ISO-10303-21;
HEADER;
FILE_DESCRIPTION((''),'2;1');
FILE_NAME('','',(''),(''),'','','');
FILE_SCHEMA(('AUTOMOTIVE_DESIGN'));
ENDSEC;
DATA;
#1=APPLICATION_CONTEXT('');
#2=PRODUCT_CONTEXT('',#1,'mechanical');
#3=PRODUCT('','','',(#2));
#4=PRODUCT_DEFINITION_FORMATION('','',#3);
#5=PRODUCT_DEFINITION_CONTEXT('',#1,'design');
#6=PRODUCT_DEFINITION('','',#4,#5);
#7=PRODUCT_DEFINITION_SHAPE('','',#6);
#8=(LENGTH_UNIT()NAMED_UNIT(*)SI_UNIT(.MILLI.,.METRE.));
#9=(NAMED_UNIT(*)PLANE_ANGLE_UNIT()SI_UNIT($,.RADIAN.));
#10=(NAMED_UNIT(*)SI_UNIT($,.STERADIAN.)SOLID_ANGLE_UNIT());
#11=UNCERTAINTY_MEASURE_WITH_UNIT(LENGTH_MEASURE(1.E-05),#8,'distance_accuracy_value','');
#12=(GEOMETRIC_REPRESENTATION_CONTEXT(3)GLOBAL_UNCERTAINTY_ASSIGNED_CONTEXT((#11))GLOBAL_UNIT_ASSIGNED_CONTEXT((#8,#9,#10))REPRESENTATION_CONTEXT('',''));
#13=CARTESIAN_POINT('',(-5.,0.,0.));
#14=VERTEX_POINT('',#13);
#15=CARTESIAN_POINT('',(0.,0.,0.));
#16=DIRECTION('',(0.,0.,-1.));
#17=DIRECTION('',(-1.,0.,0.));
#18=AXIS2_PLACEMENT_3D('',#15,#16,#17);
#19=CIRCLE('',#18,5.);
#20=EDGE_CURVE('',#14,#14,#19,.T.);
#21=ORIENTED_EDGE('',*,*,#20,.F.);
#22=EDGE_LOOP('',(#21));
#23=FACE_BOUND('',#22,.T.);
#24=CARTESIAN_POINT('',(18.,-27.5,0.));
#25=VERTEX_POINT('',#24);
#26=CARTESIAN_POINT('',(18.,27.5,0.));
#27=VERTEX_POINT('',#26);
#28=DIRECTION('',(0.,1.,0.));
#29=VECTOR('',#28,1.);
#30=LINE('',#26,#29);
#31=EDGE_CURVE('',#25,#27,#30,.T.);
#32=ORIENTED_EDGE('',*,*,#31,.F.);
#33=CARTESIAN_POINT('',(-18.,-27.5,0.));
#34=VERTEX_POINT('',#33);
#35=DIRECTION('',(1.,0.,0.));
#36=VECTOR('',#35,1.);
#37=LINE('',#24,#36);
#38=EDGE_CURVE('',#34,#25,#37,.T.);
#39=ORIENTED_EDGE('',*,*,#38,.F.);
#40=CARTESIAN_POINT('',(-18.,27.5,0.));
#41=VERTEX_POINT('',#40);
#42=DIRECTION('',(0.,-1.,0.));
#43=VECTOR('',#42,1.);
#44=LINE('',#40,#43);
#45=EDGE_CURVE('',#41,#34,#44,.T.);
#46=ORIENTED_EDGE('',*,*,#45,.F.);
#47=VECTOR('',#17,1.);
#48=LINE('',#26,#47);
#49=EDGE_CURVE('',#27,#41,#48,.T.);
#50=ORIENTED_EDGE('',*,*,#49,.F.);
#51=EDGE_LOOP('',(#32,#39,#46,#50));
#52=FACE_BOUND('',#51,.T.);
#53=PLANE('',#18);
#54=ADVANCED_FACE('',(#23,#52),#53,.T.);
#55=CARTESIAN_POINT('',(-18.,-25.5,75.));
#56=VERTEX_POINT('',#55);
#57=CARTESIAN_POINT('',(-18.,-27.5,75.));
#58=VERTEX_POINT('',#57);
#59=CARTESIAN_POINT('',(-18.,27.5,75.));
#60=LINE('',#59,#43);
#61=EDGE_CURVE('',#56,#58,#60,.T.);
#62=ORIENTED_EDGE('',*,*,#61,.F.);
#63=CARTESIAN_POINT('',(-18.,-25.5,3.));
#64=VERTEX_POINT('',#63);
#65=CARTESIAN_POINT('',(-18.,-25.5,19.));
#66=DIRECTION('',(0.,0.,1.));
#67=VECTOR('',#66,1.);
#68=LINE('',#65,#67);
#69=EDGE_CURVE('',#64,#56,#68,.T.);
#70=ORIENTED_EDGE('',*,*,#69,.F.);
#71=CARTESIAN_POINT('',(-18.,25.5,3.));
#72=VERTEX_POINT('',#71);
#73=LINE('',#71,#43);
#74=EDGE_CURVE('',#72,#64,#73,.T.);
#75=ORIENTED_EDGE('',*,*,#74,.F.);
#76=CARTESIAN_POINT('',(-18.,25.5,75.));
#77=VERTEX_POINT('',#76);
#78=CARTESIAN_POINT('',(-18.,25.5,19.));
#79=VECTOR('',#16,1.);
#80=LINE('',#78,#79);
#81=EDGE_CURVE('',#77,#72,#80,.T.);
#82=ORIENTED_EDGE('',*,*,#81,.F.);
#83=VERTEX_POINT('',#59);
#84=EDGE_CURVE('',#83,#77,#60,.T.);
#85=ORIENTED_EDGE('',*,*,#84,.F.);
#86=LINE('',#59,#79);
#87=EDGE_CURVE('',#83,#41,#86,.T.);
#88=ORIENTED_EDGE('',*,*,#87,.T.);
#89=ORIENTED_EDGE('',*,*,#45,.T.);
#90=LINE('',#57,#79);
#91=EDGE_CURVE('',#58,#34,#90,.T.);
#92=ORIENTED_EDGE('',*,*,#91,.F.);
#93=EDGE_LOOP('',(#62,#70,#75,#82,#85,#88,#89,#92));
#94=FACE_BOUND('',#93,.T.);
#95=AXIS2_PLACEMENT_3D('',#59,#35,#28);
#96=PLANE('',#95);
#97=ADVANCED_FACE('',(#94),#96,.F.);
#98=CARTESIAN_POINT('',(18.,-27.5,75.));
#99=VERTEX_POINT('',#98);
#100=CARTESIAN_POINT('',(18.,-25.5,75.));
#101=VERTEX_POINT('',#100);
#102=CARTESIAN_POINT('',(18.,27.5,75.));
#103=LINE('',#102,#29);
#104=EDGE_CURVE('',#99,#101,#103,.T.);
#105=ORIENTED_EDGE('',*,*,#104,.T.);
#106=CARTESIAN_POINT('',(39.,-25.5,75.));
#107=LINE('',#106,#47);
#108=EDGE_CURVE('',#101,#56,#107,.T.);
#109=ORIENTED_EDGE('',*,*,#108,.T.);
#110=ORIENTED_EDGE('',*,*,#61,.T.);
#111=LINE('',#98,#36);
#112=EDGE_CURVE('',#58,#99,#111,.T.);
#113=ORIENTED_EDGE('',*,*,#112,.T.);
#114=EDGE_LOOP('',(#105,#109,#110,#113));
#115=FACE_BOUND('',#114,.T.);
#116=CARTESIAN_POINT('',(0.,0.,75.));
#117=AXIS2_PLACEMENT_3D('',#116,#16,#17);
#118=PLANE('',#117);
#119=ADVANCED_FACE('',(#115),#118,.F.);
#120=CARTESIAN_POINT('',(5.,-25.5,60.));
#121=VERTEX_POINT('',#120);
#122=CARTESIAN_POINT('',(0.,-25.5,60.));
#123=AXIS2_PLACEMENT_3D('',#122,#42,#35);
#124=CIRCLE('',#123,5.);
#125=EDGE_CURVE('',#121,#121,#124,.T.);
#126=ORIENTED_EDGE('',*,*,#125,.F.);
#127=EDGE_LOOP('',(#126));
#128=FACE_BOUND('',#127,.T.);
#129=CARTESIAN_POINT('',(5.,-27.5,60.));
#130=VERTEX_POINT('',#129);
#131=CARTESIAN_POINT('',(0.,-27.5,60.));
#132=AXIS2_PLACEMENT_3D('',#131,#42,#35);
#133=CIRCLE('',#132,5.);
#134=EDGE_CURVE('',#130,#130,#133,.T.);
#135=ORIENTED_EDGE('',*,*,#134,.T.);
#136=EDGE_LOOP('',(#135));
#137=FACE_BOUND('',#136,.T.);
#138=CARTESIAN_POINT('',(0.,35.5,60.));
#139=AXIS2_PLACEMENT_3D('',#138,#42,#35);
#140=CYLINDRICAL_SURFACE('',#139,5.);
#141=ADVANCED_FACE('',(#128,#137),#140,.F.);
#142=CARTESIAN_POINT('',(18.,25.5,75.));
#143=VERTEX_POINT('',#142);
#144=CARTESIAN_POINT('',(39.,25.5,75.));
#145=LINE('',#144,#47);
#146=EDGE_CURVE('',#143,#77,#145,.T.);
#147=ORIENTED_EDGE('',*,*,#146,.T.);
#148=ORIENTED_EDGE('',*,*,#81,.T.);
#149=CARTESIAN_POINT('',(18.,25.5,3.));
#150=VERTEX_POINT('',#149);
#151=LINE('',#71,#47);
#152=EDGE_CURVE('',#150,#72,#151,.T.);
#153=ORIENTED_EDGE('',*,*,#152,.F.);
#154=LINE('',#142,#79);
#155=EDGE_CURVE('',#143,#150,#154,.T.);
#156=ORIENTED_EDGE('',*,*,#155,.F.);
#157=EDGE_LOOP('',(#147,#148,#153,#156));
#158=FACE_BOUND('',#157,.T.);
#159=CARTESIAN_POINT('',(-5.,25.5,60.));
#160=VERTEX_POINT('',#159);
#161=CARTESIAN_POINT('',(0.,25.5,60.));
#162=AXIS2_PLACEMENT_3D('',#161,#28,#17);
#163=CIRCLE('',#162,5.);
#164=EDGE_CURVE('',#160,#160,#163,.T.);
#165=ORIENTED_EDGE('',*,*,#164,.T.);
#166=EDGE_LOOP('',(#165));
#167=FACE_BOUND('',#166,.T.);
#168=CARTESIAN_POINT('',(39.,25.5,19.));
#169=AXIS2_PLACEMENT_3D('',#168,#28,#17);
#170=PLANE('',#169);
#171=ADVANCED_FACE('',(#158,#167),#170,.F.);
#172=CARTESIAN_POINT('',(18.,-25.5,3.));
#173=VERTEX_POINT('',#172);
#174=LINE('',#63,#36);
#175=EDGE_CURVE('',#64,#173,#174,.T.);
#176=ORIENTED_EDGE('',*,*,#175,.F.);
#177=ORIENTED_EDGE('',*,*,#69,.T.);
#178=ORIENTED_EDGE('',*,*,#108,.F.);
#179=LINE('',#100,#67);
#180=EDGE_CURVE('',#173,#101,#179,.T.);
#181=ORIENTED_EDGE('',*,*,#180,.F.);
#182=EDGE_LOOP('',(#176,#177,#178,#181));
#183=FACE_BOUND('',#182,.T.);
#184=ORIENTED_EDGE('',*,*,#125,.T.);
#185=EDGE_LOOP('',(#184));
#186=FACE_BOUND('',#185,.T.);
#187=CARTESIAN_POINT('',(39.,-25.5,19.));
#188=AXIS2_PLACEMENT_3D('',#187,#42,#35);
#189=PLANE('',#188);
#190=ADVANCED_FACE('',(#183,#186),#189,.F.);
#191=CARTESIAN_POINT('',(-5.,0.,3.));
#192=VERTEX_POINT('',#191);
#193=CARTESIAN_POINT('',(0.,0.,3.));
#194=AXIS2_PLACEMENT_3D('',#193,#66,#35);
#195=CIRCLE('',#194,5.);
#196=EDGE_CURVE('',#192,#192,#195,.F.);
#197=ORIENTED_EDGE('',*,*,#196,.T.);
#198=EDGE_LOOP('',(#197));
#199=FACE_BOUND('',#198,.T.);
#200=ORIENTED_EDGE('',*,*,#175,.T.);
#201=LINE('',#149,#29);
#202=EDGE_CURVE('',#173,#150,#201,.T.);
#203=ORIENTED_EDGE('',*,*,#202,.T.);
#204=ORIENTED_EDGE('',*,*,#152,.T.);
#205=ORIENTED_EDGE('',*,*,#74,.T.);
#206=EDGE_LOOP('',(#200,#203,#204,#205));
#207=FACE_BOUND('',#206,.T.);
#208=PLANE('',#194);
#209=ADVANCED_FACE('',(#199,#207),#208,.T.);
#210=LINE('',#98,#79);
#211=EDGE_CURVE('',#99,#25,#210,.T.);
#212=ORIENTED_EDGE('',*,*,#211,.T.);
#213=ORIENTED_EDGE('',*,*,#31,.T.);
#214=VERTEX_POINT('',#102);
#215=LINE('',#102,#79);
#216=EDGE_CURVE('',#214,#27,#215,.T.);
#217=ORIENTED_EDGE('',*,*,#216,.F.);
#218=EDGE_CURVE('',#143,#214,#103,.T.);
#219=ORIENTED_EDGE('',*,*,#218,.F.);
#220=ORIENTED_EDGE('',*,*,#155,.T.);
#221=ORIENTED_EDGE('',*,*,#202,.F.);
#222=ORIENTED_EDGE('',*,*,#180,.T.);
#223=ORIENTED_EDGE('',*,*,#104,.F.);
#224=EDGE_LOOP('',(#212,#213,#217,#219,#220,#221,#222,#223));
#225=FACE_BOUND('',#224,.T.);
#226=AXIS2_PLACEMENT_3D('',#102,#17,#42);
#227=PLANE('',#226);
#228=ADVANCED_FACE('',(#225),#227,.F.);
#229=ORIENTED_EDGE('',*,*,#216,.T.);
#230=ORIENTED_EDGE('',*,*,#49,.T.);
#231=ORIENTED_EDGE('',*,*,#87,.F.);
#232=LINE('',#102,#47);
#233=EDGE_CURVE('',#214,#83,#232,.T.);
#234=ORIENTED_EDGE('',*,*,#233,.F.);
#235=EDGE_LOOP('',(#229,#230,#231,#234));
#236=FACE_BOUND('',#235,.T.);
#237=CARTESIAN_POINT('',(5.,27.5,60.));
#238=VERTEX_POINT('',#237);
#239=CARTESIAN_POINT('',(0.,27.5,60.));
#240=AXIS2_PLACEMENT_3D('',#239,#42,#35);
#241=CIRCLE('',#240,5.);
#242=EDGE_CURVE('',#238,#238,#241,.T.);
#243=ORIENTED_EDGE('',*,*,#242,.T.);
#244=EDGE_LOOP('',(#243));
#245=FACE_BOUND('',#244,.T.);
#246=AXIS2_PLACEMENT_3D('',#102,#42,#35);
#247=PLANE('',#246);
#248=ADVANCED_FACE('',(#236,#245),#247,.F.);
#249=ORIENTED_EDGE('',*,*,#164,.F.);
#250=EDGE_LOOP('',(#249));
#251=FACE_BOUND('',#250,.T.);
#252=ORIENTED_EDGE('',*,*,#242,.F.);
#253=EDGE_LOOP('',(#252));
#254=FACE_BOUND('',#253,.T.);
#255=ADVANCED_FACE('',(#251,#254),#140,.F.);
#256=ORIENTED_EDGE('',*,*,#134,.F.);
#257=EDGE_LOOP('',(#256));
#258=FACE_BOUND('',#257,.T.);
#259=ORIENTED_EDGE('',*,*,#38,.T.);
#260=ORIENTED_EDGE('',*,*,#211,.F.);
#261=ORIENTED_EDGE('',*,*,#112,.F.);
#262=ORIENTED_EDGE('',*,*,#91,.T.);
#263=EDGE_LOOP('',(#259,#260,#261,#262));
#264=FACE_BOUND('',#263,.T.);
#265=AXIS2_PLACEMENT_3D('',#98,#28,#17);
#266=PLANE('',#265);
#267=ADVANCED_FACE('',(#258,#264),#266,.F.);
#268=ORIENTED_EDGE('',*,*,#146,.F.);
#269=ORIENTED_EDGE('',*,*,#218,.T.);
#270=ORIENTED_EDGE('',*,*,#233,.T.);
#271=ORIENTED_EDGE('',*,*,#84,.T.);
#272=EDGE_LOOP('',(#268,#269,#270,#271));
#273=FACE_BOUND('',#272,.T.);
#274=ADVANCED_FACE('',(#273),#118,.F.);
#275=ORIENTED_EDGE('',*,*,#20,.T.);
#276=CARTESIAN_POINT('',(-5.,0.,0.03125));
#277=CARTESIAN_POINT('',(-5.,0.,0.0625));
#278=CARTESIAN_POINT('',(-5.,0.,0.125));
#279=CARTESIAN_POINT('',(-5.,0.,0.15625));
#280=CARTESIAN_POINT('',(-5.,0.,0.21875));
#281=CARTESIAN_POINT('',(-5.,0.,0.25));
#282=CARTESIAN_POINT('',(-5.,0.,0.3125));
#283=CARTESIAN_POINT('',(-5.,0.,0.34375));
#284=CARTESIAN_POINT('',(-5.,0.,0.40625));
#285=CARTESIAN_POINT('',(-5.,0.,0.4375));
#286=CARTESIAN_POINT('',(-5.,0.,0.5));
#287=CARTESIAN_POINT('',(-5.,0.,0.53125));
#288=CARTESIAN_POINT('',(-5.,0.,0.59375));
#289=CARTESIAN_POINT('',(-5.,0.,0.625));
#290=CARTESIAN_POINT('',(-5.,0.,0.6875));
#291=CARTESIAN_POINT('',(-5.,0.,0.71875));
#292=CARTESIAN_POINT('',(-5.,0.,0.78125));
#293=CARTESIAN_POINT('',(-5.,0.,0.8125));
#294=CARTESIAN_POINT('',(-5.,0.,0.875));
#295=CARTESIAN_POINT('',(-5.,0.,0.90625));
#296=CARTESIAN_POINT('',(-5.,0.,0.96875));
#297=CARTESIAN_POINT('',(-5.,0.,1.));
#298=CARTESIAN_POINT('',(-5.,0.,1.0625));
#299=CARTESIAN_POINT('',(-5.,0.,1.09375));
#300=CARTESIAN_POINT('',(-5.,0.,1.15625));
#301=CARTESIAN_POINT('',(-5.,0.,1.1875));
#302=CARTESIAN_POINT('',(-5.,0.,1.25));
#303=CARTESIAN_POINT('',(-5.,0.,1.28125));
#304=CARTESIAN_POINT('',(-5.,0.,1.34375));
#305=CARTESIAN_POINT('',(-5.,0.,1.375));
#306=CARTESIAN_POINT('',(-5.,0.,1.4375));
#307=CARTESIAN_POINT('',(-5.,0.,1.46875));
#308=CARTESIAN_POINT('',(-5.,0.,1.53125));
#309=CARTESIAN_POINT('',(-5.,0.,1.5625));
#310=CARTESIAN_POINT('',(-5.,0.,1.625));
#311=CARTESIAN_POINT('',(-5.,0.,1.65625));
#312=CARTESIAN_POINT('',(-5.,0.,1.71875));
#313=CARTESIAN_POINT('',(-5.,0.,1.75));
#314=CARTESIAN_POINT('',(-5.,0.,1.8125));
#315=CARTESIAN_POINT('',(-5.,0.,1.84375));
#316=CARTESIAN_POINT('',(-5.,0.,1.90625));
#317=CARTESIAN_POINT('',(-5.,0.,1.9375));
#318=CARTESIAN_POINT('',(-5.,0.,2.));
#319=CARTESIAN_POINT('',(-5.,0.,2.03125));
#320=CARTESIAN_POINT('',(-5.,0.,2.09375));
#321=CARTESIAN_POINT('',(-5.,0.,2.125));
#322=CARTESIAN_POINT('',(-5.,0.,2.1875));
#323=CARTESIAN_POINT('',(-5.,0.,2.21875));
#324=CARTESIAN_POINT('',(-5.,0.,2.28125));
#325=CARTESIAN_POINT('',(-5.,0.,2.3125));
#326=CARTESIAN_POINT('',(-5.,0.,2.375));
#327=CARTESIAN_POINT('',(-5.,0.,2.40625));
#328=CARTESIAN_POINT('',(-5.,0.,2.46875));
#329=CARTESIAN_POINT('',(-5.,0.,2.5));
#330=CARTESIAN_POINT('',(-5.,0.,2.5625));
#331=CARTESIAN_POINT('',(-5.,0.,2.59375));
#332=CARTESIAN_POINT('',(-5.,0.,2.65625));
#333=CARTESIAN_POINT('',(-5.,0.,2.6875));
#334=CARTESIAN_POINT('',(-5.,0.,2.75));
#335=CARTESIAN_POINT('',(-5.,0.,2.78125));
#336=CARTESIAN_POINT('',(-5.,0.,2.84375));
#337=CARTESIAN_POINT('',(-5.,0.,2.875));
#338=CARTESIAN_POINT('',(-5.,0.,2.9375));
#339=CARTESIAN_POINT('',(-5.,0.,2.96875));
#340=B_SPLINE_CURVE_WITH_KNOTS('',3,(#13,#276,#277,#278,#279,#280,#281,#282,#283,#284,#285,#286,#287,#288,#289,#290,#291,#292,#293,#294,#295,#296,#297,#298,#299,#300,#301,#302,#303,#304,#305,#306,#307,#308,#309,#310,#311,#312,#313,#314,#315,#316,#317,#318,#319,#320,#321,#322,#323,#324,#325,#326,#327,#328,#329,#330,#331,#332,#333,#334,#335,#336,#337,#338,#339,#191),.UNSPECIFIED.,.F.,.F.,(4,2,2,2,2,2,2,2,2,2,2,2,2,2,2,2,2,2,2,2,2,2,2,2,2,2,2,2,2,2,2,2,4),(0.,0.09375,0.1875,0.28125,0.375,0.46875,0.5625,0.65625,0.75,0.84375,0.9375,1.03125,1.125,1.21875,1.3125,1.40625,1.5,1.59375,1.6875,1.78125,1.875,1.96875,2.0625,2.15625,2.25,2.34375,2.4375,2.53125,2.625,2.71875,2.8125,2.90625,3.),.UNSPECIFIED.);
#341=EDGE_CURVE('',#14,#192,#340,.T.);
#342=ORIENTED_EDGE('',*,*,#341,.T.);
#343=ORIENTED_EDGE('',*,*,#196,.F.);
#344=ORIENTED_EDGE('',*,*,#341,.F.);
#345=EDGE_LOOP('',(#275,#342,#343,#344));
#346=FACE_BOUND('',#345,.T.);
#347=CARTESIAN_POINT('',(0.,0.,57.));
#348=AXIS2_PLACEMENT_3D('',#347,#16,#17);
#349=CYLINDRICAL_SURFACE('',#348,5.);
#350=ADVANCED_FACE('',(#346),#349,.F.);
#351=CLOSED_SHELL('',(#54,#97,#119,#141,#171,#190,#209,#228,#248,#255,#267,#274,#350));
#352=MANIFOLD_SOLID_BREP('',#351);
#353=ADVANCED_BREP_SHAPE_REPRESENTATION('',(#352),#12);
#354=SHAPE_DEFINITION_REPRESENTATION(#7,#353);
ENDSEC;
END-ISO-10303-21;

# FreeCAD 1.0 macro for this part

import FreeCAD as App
import Part
import Sketcher

V = App.Vector
Q = App.Units.Quantity


def add_polygon(sketch, points):
    """Adds a closed chain of lines whose ends are joined by coincident constraints."""
    first, n = sketch.GeometryCount, len(points)
    for a, b in zip(points, points[1:] + points[:1]):
        sketch.addGeometry(Part.LineSegment(App.Vector(*a, 0), App.Vector(*b, 0)), False)
    for i in range(n):
        sketch.addConstraint(Sketcher.Constraint("Coincident", first + i, 2, first + (i + 1) % n, 1))

doc = App.newDocument("Part")
body = doc.addObject("PartDesign::Body", "Body")

# Sketch on XY plane
sketch1 = body.newObject("Sketcher::SketchObject", "Sketch")
sketch1.AttachmentSupport = (doc.getObject("XY_Plane"), [""])
sketch1.MapMode = "FlatFace"
add_polygon(sketch1, [(-18, 27.5), (-18, -27.5), (18, -27.5), (18, 27.5)])  # lines 0-3
sketch1.addConstraint([
    Sketcher.Constraint("Vertical", 0),
    Sketcher.Constraint("Horizontal", 1),
    Sketcher.Constraint("Vertical", 2),
    Sketcher.Constraint("Horizontal", 3),
    Sketcher.Constraint("Symmetric", 0, 2, 2, 2, -1, 1),
    Sketcher.Constraint("DistanceX", 1, 1, 1, 2, Q("36 mm")),
    Sketcher.Constraint("DistanceY", 0, 2, 0, 1, Q("55 mm")),
])
pad1 = body.newObject("PartDesign::Pad", "Pad")
pad1.Profile = sketch1
pad1.Length = 75

# Sketch on XY plane
sketch2 = body.newObject("Sketcher::SketchObject", "Sketch001")
sketch2.AttachmentSupport = (doc.getObject("XY_Plane"), [""])
sketch2.MapMode = "FlatFace"
sketch2.AttachmentOffset = App.Placement(V(0, 0, 75), App.Rotation())
add_polygon(sketch2, [(-17, 15), (-17, -15), (17, -15), (17, 15)])  # lines 0-3
sketch2.addConstraint([
    Sketcher.Constraint("Vertical", 0),
    Sketcher.Constraint("Horizontal", 1),
    Sketcher.Constraint("Vertical", 2),
    Sketcher.Constraint("Horizontal", 3),
    Sketcher.Constraint("Symmetric", 0, 2, 2, 2, -1, 1),
    Sketcher.Constraint("DistanceX", 1, 1, 1, 2, Q("34 mm")),
    Sketcher.Constraint("DistanceY", 0, 2, 0, 1, Q("30 mm")),
])
pocket1 = body.newObject("PartDesign::Pocket", "Pocket")
pocket1.Profile = sketch2
pocket1.Length = 56

# Sketch on YZ plane
sketch3 = body.newObject("Sketcher::SketchObject", "Sketch002")
sketch3.AttachmentSupport = (doc.getObject("YZ_Plane"), [""])
sketch3.MapMode = "FlatFace"
sketch3.AttachmentOffset = App.Placement(V(0, 0, -18), App.Rotation())
add_polygon(sketch3, [(25.5, 19), (-25.5, 19), (-25.5, 75), (25.5, 75)])  # lines 0-3
sketch3.addConstraint([
    Sketcher.Constraint("Horizontal", 0),
    Sketcher.Constraint("Vertical", 1),
    Sketcher.Constraint("Horizontal", 2),
    Sketcher.Constraint("Vertical", 3),
    Sketcher.Constraint("DistanceX", 0, 2, 0, 1, Q("51 mm")),
    Sketcher.Constraint("DistanceY", 1, 1, 1, 2, Q("56 mm")),
    Sketcher.Constraint("DistanceY", -1, 1, 0, 2, Q("19 mm")),
    Sketcher.Constraint("DistanceX", 0, 2, -1, 1, Q("25.5 mm")),
])
pocket2 = body.newObject("PartDesign::Pocket", "Pocket001")
pocket2.Profile = sketch3
pocket2.Length = 57
pocket2.Reversed = True

# Sketch on XY plane
sketch4 = body.newObject("Sketcher::SketchObject", "Sketch003")
sketch4.AttachmentSupport = (doc.getObject("XY_Plane"), [""])
sketch4.MapMode = "FlatFace"
sketch4.addGeometry(Part.Circle(V(0, 0, 0), V(0, 0, 1), 5), False)
sketch4.addConstraint([
    Sketcher.Constraint("Coincident", 0, 3, -1, 1),
    Sketcher.Constraint("Diameter", 0, Q("10 mm")),
])
pocket3 = body.newObject("PartDesign::Pocket", "Pocket002")
pocket3.Profile = sketch4
pocket3.Length = 57
pocket3.Reversed = True

# Sketch on XY plane
sketch5 = body.newObject("Sketcher::SketchObject", "Sketch004")
sketch5.AttachmentSupport = (doc.getObject("XY_Plane"), [""])
sketch5.MapMode = "FlatFace"
sketch5.AttachmentOffset = App.Placement(V(0, 0, 19), App.Rotation())
add_polygon(sketch5, [(-18, 25.5), (-18, -25.5), (18, -25.5), (18, 25.5)])  # lines 0-3
sketch5.addConstraint([
    Sketcher.Constraint("Vertical", 0),
    Sketcher.Constraint("Horizontal", 1),
    Sketcher.Constraint("Vertical", 2),
    Sketcher.Constraint("Horizontal", 3),
    Sketcher.Constraint("Symmetric", 0, 2, 2, 2, -1, 1),
    Sketcher.Constraint("DistanceX", 1, 1, 1, 2, Q("36 mm")),
    Sketcher.Constraint("DistanceY", 0, 2, 0, 1, Q("51 mm")),
])
pocket4 = body.newObject("PartDesign::Pocket", "Pocket003")
pocket4.Profile = sketch5
pocket4.Length = 16

# Sketch on XZ plane
sketch6 = body.newObject("Sketcher::SketchObject", "Sketch005")
sketch6.AttachmentSupport = (doc.getObject("XZ_Plane"), [""])
sketch6.MapMode = "FlatFace"
sketch6.AttachmentOffset = App.Placement(V(0, 0, 27.5), App.Rotation())
sketch6.addGeometry(Part.Circle(V(0, 60, 0), V(0, 0, 1), 5), False)
sketch6.addConstraint([
    Sketcher.Constraint("PointOnObject", 0, 3, -2),
    Sketcher.Constraint("Diameter", 0, Q("10 mm")),
    Sketcher.Constraint("DistanceY", -1, 1, 0, 3, Q("60 mm")),
])
pocket5 = body.newObject("PartDesign::Pocket", "Pocket004")
pocket5.Profile = sketch6
pocket5.Length = 63

doc.recompute()
